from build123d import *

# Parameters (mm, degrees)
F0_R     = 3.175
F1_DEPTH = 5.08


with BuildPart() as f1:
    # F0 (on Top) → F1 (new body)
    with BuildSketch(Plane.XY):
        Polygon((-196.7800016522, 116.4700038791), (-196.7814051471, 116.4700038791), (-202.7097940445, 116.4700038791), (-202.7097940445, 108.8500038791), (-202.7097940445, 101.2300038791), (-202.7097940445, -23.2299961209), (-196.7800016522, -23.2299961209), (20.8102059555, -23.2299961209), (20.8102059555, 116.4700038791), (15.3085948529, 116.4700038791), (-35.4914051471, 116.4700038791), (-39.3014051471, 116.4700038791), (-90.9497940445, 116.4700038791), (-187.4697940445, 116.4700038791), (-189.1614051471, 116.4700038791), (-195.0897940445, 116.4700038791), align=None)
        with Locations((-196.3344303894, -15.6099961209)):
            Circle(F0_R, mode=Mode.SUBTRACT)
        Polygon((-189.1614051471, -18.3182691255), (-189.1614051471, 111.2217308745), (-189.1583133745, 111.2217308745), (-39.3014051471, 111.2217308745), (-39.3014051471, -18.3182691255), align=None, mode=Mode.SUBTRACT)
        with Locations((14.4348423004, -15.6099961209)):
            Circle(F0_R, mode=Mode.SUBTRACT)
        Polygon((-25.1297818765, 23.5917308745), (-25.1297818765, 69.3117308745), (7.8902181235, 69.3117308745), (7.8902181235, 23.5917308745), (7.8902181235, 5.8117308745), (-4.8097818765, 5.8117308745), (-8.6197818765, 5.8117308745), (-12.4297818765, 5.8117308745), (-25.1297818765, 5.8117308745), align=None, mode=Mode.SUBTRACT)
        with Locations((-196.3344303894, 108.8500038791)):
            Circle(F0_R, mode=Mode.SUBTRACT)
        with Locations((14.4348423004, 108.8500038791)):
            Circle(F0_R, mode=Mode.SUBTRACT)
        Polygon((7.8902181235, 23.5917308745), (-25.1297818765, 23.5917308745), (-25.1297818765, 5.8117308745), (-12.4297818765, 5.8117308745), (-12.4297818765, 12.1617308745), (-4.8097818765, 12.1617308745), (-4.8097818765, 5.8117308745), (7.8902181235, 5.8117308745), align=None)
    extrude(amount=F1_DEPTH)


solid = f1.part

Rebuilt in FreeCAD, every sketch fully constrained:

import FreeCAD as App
import Part
import Sketcher

V = App.Vector
Q = App.Units.Quantity

doc = App.newDocument("Part")
body = doc.addObject("PartDesign::Body", "Body")

# Sketch on XY plane
sketch1 = doc.addObject("Sketcher::SketchObject", "Sketch")
body.addObject(sketch1)
sketch1.AttachmentSupport = (doc.XY_Plane, [""])
sketch1.MapMode = "FlatFace"
sketch1.addGeometry([
    Part.LineSegment(V(-202.709794, 116.470004, 0), V(-202.709794, -23.229996, 0)),  # 0
    Part.LineSegment(V(-202.709794, -23.229996, 0), V(20.810206, -23.229996, 0)),  # 1
    Part.LineSegment(V(20.810206, -23.229996, 0), V(20.810206, 116.470004, 0)),  # 2
    Part.LineSegment(V(20.810206, 116.470004, 0), V(-202.709794, 116.470004, 0)),  # 3
    Part.Circle(V(-196.33443, -15.609996, 0), V(0, 0, 1), 3.175),  # 4
    Part.LineSegment(V(-39.301405, -18.318269, 0), V(-189.161405, -18.318269, 0)),  # 5
    Part.LineSegment(V(-189.161405, -18.318269, 0), V(-189.161405, 111.221731, 0)),  # 6
    Part.LineSegment(V(-189.161405, 111.221731, 0), V(-39.301405, 111.221731, 0)),  # 7
    Part.LineSegment(V(-39.301405, 111.221731, 0), V(-39.301405, -18.318269, 0)),  # 8
    Part.Circle(V(14.434842, -15.609996, 0), V(0, 0, 1), 3.175),  # 9
    Part.LineSegment(V(-25.129782, 23.591731, 0), V(-25.129782, 69.311731, 0)),  # 10
    Part.LineSegment(V(-25.129782, 69.311731, 0), V(7.890218, 69.311731, 0)),  # 11
    Part.LineSegment(V(7.890218, 69.311731, 0), V(7.890218, 23.591731, 0)),  # 12
    Part.LineSegment(V(7.890218, 23.591731, 0), V(-25.129782, 23.591731, 0)),  # 13
    Part.LineSegment(V(-4.809782, 5.811731, 0), V(-12.429782, 5.811731, 0)),  # 14
    Part.LineSegment(V(-12.429782, 5.811731, 0), V(-12.429782, 12.161731, 0)),  # 15
    Part.LineSegment(V(-12.429782, 12.161731, 0), V(-4.809782, 12.161731, 0)),  # 16
    Part.LineSegment(V(-4.809782, 12.161731, 0), V(-4.809782, 5.811731, 0)),  # 17
    Part.Circle(V(-196.33443, 108.850004, 0), V(0, 0, 1), 3.175),  # 18
    Part.Circle(V(14.434842, 108.850004, 0), V(0, 0, 1), 3.175),  # 19
], False)
sketch1.addConstraint([
    Sketcher.Constraint("Coincident", 0, 2, 1, 1),
    Sketcher.Constraint("Coincident", 1, 2, 2, 1),
    Sketcher.Constraint("Coincident", 2, 2, 3, 1),
    Sketcher.Constraint("Coincident", 3, 2, 0, 1),
    Sketcher.Constraint("Coincident", 5, 2, 6, 1),
    Sketcher.Constraint("Coincident", 6, 2, 7, 1),
    Sketcher.Constraint("Coincident", 7, 2, 8, 1),
    Sketcher.Constraint("Coincident", 8, 2, 5, 1),
    Sketcher.Constraint("Coincident", 10, 2, 11, 1),
    Sketcher.Constraint("Coincident", 11, 2, 12, 1),
    Sketcher.Constraint("Coincident", 12, 2, 13, 1),
    Sketcher.Constraint("Coincident", 13, 2, 10, 1),
    Sketcher.Constraint("Coincident", 14, 2, 15, 1),
    Sketcher.Constraint("Coincident", 15, 2, 16, 1),
    Sketcher.Constraint("Coincident", 16, 2, 17, 1),
    Sketcher.Constraint("Coincident", 17, 2, 14, 1),
    Sketcher.Constraint("Vertical", 0),
    Sketcher.Constraint("Horizontal", 1),
    Sketcher.Constraint("Vertical", 2),
    Sketcher.Constraint("Horizontal", 3),
    Sketcher.Constraint("Horizontal", 5),
    Sketcher.Constraint("Vertical", 6),
    Sketcher.Constraint("Horizontal", 7),
    Sketcher.Constraint("Vertical", 8),
    Sketcher.Constraint("Vertical", 10),
    Sketcher.Constraint("Horizontal", 11),
    Sketcher.Constraint("Vertical", 12),
    Sketcher.Constraint("Horizontal", 13),
    Sketcher.Constraint("Horizontal", 14),
    Sketcher.Constraint("Vertical", 15),
    Sketcher.Constraint("Horizontal", 16),
    Sketcher.Constraint("Vertical", 17),
    Sketcher.Constraint("Equal", 4, 9),
    Sketcher.Constraint("Equal", 9, 18),
    Sketcher.Constraint("Equal", 18, 19),
    Sketcher.Constraint("Horizontal", 4, 3, 9, 3),
    Sketcher.Constraint("Horizontal", 18, 3, 19, 3),
    Sketcher.Constraint("Vertical", 4, 3, 18, 3),
    Sketcher.Constraint("Vertical", 9, 3, 19, 3),
    Sketcher.Constraint("Diameter", 4, Q("0.25 in")),
    Sketcher.Constraint("DistanceX", 1, 1, 1, 2, Q("8.8 in")),
    Sketcher.Constraint("DistanceX", 5, 2, 5, 1, Q("5.9 in")),
    Sketcher.Constraint("DistanceX", 11, 1, 11, 2, Q("1.3 in")),
    Sketcher.Constraint("DistanceX", 14, 2, 14, 1, Q("0.3 in")),
    Sketcher.Constraint("DistanceY", 0, 2, 0, 1, Q("5.5 in")),
    Sketcher.Constraint("DistanceY", 6, 1, 6, 2, Q("5.1 in")),
    Sketcher.Constraint("DistanceY", 10, 1, 10, 2, Q("1.8 in")),
    Sketcher.Constraint("DistanceY", 15, 1, 15, 2, Q("0.25 in")),
    Sketcher.Constraint("DistanceY", 4, 3, 18, 3, Q("4.9 in")),
    Sketcher.Constraint("DistanceY", 0, 2, 4, 3, Q("0.3 in")),
    Sketcher.Constraint("DistanceX", 13, 2, 14, 2, Q("0.5 in")),
    Sketcher.Constraint("DistanceY", 14, 2, 13, 2, Q("0.7 in")),
    Sketcher.Constraint("DistanceY", 8, 2, 15, 2, Q("1.2 in")),
    Sketcher.Constraint("DistanceX", 4, 3, -1, 1, 196.33443),
    Sketcher.Constraint("DistanceY", 5, 2, -1, 1, 18.318269),
    Sketcher.Constraint("DistanceX", 10, 2, -1, 1, 25.129782),
    Sketcher.Constraint("DistanceX", 0, 2, 5, 2, 13.548389),
    Sketcher.Constraint("DistanceY", 4, 3, -1, 1, 15.609996),
    Sketcher.Constraint("DistanceX", -1, 1, 9, 3, 14.434842),
    Sketcher.Constraint("DistanceX", 0, 2, -1, 1, 202.709794),
])
pad1 = doc.addObject("PartDesign::Pad", "Pad")
body.addObject(pad1)
pad1.Profile = sketch1
pad1.Length = Q("0.2 in")

doc.recompute()
